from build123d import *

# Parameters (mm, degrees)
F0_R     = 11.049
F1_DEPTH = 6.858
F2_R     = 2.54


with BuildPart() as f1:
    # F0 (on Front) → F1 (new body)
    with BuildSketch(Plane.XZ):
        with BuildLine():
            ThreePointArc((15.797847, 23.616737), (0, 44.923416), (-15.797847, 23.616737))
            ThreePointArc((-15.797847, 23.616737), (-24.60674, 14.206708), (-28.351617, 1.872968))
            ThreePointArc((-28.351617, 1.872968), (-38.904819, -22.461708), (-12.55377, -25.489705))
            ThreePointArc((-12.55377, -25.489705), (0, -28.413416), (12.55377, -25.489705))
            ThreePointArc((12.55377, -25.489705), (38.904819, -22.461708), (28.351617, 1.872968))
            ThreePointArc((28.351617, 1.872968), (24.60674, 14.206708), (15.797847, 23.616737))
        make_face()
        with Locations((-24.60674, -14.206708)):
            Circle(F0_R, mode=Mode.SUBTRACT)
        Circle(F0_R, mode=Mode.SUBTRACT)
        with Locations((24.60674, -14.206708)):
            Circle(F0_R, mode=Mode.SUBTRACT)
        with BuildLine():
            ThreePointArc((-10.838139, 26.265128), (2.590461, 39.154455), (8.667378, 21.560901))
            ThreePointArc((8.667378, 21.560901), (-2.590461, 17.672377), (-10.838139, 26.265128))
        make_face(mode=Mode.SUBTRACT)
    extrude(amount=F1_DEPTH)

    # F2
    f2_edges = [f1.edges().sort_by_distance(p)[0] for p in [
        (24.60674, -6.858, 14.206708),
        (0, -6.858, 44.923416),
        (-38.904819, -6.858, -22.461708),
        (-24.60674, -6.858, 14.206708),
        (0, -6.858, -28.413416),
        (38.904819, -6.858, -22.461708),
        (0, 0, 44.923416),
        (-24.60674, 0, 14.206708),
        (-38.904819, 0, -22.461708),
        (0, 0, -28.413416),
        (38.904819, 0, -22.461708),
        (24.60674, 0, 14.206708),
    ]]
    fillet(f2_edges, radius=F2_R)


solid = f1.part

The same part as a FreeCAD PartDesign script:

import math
import FreeCAD as App
import Part
import Sketcher
Q = App.Units.Quantity


def edges_at(feature, points):
    """Names of the edges that pass closest to the given points."""
    edges = feature.Shape.Edges
    near = lambda p: min(range(len(edges)), key=lambda i: edges[i].distToShape(Part.Vertex(*p))[0])
    return sorted({f"Edge{near(p) + 1}" for p in points})

doc = App.newDocument("Part")
params = doc.addObject("Spreadsheet::Sheet", "Params")
for row, (alias, value) in enumerate([
    ("sketch1_diameter", "0.87 in"),
    ("sketch1_radius", "0.65 in"),
    ("pad1_length", "0.27 in"),
    ("fillet_radius", "0.1 in"),
], start=1):
    params.set(f"A{row}", alias)
    params.set(f"B{row}", "=" + value)
    params.setAlias(f"B{row}", alias)

body = doc.addObject("PartDesign::Body", "Body")

sketch1 = body.newObject("Sketcher::SketchObject", "Sketch")
sketch1.AttachmentSupport = (doc.getObject("XZ_Plane"), [""])
sketch1.MapMode = "FlatFace"
sketch1.addGeometry([
    Part.ArcOfCircle(Part.Circle(App.Vector(0, 28, 0), App.Vector(0, 0, 1), 17), math.radians(-17), math.radians(197)),
    Part.ArcOfCircle(Part.Circle(App.Vector(0, 0, 0), App.Vector(0, 0, 1), 28), math.radians(124), math.radians(176)),
    Part.ArcOfCircle(Part.Circle(App.Vector(-25, -14, 0), App.Vector(0, 0, 1), 17), math.radians(103), math.radians(317)),
    Part.ArcOfCircle(Part.Circle(App.Vector(0, 0, 0), App.Vector(0, 0, 1), 28), math.radians(-116), math.radians(-64)),
    Part.ArcOfCircle(Part.Circle(App.Vector(25, -14, 0), App.Vector(0, 0, 1), 17), math.radians(-137), math.radians(77)),
    Part.ArcOfCircle(Part.Circle(App.Vector(0, 0, 0), App.Vector(0, 0, 1), 28), math.radians(4), math.radians(56)),
    Part.Circle(App.Vector(-25, -14, 0), App.Vector(0, 0, 1), 11),
    Part.Circle(App.Vector(25, -14, 0), App.Vector(0, 0, 1), 11),
    Part.Circle(App.Vector(0, 0, 0), App.Vector(0, 0, 1), 11),
    Part.ArcOfCircle(Part.Circle(App.Vector(0, 28, 0), App.Vector(0, 0, 1), 11), math.radians(-169), math.radians(-38)),
    Part.ArcOfCircle(Part.Circle(App.Vector(0, 28, 0), App.Vector(0, 0, 1), 11), math.radians(-38), math.radians(191)),
], False)
sketch1.addConstraint([
    Sketcher.Constraint("Coincident", 0, 2, 1, 1),
    Sketcher.Constraint("Coincident", 1, 2, 2, 1),
    Sketcher.Constraint("Coincident", 2, 2, 3, 1),
    Sketcher.Constraint("Coincident", 3, 2, 4, 1),
    Sketcher.Constraint("Coincident", 4, 2, 5, 1),
    Sketcher.Constraint("Coincident", 5, 2, 0, 1),
    Sketcher.Constraint("Tangent", 9, 1, 10, 2),
    Sketcher.Constraint("Coincident", 10, 1, 9, 2),
    Sketcher.Constraint("Coincident", 1, 3, -1, 1),
    Sketcher.Constraint("Coincident", 3, 3, -1, 1),
    Sketcher.Constraint("Coincident", 5, 3, -1, 1),
    Sketcher.Constraint("Coincident", 8, 3, -1, 1),
    Sketcher.Constraint("Coincident", 6, 3, 2, 3),
    Sketcher.Constraint("Coincident", 7, 3, 4, 3),
    Sketcher.Constraint("Coincident", 9, 3, 0, 3),
    Sketcher.Constraint("Equal", 0, 2),
    Sketcher.Constraint("Equal", 2, 4),
    Sketcher.Constraint("Equal", 1, 5),
    Sketcher.Constraint("Equal", 6, 7),
    Sketcher.Constraint("Equal", 7, 8),
    Sketcher.Constraint("Equal", 8, 9),
    Sketcher.Constraint("Symmetric", 2, 3, 4, 3, -2),
    Sketcher.Constraint("PointOnObject", 0, 3, -2),
    Sketcher.Constraint("Diameter", 6, Q("0.87 in")),
    Sketcher.Constraint("Radius", 0, Q("0.65 in")),
    Sketcher.Constraint("Radius", 1, Q("28.413418 mm")),
    Sketcher.Constraint("Radius", 3, Q("28.413415 mm")),
    Sketcher.Constraint("DistanceY", -1, 1, 10, 1, Q("21.560901 mm")),
    Sketcher.Constraint("DistanceX", 2, 3, -1, 1, Q("24.60674 mm")),
    Sketcher.Constraint("DistanceY", 2, 3, -1, 1, Q("14.206708 mm")),
    Sketcher.Constraint("DistanceX", 9, 1, -1, 1, Q("10.838139 mm")),
    Sketcher.Constraint("DistanceY", -1, 1, 9, 1, Q("26.265128 mm")),
])
sketch1.setExpression("Constraints[23]", "Params.sketch1_diameter")
sketch1.setExpression("Constraints[24]", "Params.sketch1_radius")
pad1 = body.newObject("PartDesign::Pad", "Pad")
pad1.Profile = sketch1
pad1.setExpression("Length", "Params.pad1_length")
doc.recompute()

fillet = body.newObject("PartDesign::Fillet", "Fillet")
fillet.Base = (pad1, edges_at(pad1, [
    (24.607, -6.858, 14.207),
    (0, -6.858, 44.923),
    (-38.905, -6.858, -22.462),
    (-24.607, -6.858, 14.207),
    (0, -6.858, -28.413),
    (38.905, -6.858, -22.462),
    (0, 0, 44.923),
    (-24.607, 0, 14.207),
    (-38.905, 0, -22.462),
    (0, 0, -28.413),
    (38.905, 0, -22.462),
    (24.607, 0, 14.207),
]))
fillet.setExpression("Radius", "Params.fillet_radius")

doc.recompute()
